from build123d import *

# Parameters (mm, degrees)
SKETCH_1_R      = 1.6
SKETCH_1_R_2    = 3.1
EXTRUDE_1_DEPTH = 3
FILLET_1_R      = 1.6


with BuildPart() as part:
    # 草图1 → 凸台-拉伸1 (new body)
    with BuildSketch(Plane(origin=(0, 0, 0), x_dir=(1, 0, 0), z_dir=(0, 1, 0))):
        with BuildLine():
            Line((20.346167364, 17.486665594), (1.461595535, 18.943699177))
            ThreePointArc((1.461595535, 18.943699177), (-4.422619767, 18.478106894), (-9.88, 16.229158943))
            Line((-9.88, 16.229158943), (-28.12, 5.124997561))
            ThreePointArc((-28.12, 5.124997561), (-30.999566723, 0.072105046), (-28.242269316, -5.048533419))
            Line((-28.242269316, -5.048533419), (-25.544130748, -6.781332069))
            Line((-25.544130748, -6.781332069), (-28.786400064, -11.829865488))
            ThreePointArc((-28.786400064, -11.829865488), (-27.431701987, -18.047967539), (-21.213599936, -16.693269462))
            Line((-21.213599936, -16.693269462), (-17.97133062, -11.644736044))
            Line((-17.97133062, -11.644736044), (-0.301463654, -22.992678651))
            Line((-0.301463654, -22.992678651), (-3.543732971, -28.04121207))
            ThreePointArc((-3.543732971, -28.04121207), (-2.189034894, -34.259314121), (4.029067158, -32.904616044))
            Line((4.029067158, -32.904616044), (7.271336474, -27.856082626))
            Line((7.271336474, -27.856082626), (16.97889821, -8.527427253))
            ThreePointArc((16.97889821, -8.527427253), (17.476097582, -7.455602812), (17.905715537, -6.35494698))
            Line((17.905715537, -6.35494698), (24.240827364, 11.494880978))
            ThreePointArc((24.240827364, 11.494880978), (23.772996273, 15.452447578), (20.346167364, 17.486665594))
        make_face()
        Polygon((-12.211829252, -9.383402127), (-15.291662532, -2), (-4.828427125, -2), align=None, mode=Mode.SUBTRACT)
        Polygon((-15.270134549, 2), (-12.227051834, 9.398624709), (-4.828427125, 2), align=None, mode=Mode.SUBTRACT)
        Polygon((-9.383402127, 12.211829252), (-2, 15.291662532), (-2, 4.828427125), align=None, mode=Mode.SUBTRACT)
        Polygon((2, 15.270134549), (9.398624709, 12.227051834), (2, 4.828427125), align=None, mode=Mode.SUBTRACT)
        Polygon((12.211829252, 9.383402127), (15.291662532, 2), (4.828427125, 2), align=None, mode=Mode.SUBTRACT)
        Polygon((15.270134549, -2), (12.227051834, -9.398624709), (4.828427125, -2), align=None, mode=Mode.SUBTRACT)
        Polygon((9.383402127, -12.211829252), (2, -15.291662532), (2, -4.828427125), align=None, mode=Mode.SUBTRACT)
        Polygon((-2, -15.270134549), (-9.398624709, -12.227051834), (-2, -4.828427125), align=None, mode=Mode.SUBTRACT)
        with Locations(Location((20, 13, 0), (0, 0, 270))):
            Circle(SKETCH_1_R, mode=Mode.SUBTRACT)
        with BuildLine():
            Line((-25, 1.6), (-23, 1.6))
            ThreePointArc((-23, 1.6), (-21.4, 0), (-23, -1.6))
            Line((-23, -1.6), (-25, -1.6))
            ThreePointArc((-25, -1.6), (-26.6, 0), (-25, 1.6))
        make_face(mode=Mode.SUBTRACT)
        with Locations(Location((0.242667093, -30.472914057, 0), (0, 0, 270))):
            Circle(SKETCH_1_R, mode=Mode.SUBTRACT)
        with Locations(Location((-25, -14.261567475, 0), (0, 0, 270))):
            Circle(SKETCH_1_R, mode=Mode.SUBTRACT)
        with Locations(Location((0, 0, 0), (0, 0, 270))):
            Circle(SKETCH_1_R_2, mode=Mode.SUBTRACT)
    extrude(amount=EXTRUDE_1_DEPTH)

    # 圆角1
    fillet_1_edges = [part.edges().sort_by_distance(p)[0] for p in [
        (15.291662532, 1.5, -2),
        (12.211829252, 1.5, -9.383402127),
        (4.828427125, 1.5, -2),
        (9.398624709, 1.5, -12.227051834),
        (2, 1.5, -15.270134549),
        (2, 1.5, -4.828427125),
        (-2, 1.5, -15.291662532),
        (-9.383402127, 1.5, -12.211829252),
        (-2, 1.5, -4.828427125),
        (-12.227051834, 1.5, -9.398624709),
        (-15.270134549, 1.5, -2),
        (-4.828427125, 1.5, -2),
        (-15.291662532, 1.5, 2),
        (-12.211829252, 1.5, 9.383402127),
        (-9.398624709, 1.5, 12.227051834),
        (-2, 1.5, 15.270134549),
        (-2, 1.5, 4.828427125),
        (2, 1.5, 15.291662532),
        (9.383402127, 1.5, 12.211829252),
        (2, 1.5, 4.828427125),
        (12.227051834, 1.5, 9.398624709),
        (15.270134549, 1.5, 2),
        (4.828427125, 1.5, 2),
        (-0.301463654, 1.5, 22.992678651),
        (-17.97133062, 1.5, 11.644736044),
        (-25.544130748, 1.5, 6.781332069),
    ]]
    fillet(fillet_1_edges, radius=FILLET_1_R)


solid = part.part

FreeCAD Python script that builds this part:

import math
import FreeCAD as App
import Part
import Sketcher
from FreeCAD import Vector
Q = App.Units.Quantity


def edges_at(feature, points):
    """Names of the edges that pass closest to the given points."""
    edges = feature.Shape.Edges
    near = lambda p: min(range(len(edges)), key=lambda i: edges[i].distToShape(Part.Vertex(*p))[0])
    return sorted({f"Edge{near(p) + 1}" for p in points})


def add_polygon(sketch, points):
    """Adds a closed chain of lines whose ends are joined by coincident constraints."""
    first, n = sketch.GeometryCount, len(points)
    for a, b in zip(points, points[1:] + points[:1]):
        sketch.addGeometry(Part.LineSegment(App.Vector(*a, 0), App.Vector(*b, 0)), False)
    for i in range(n):
        sketch.addConstraint(Sketcher.Constraint("Coincident", first + i, 2, first + (i + 1) % n, 1))

doc = App.newDocument("Part")
body = doc.addObject("PartDesign::Body", "Body")

sketch1 = body.newObject("Sketcher::SketchObject", "Sketch")
sketch1.AttachmentSupport = (doc.getObject("XZ_Plane"), [""])
sketch1.MapMode = "FlatFace"
sketch1.addGeometry(Part.LineSegment(Vector(20.3, -17.5, 0), Vector(1.5, -18.9, 0)), False)
sketch1.addGeometry(Part.ArcOfCircle(Part.Circle(Vector(0, 0, 0), Vector(0, 0, 1), 19), math.radians(-121), math.radians(-86)), False)
sketch1.addGeometry(Part.LineSegment(Vector(-9.9, -16.2, 0), Vector(-28.1, -5.1, 0)), False)
sketch1.addGeometry(Part.ArcOfCircle(Part.Circle(Vector(-25, 0, 0), Vector(0, 0, 1), 6), math.radians(123), math.radians(239)), False)
sketch1.addGeometry(Part.LineSegment(Vector(-28.2, 5, 0), Vector(-25.5, 6.8, 0)), False)
sketch1.addGeometry(Part.LineSegment(Vector(-25.5, 6.8, 0), Vector(-28.8, 11.8, 0)), False)
sketch1.addGeometry(Part.ArcOfCircle(Part.Circle(Vector(-25, 14.3, 0), Vector(0, 0, 1), 4.5), math.radians(33), math.radians(213)), False)
sketch1.addGeometry(Part.LineSegment(Vector(-21.2, 16.7, 0), Vector(-18, 11.6, 0)), False)
sketch1.addGeometry(Part.LineSegment(Vector(-18, 11.6, 0), Vector(-0.3, 23, 0)), False)
sketch1.addGeometry(Part.LineSegment(Vector(-0.3, 23, 0), Vector(-3.5, 28, 0)), False)
sketch1.addGeometry(Part.ArcOfCircle(Part.Circle(Vector(0.2, 30.5, 0), Vector(0, 0, 1), 4.5), math.radians(33), math.radians(213)), False)
sketch1.addGeometry(Part.LineSegment(Vector(4, 32.9, 0), Vector(7.3, 27.9, 0)), False)
sketch1.addGeometry(Part.LineSegment(Vector(7.3, 27.9, 0), Vector(17, 8.5, 0)), False)
sketch1.addGeometry(Part.ArcOfCircle(Part.Circle(Vector(0, 0, 0), Vector(0, 0, 1), 19), math.radians(19.54), math.radians(26.67)), False)
sketch1.addGeometry(Part.LineSegment(Vector(17.9, 6.4, 0), Vector(24.2, -11.5, 0)), False)
sketch1.addGeometry(Part.ArcOfCircle(Part.Circle(Vector(20, -13, 0), Vector(0, 0, 1), 4.5), math.radians(-86), math.radians(20)), False)
sketch1.addGeometry(Part.Circle(Vector(-25, 14.3, 0), Vector(0, 0, 1), 1.6), False)
add_polygon(sketch1, [(-2, 4.8), (-2, 15.3), (-9.4, 12.2)])
sketch1.addGeometry(Part.Circle(Vector(0.2, 30.5, 0), Vector(0, 0, 1), 1.6), False)
add_polygon(sketch1, [(2, 4.8), (9.4, 12.2), (2, 15.3)])
sketch1.addGeometry(Part.ArcOfCircle(Part.Circle(Vector(-25, 0, 0), Vector(0, 0, 1), 1.6), math.radians(90), math.radians(270)), False)
sketch1.addGeometry(Part.LineSegment(Vector(-25, -1.6, 0), Vector(-23, -1.6, 0)), False)
sketch1.addGeometry(Part.ArcOfCircle(Part.Circle(Vector(-23, 0, 0), Vector(0, 0, 1), 1.6), math.radians(-90), math.radians(90)), False)
sketch1.addGeometry(Part.LineSegment(Vector(-23, 1.6, 0), Vector(-25, 1.6, 0)), False)
add_polygon(sketch1, [(-4.8, 2), (-12.2, 9.4), (-15.3, 2)])
add_polygon(sketch1, [(-4.8, -2), (-15.3, -2), (-12.2, -9.4)])
add_polygon(sketch1, [(-2, -4.8), (-9.4, -12.2), (-2, -15.3)])
sketch1.addGeometry(Part.Circle(Vector(0, 0, 0), Vector(0, 0, 1), 3.1), False)
add_polygon(sketch1, [(4.8, 2), (15.3, 2), (12.2, 9.4)])
add_polygon(sketch1, [(2, -4.8), (2, -15.3), (9.4, -12.2)])
add_polygon(sketch1, [(4.8, -2), (12.2, -9.4), (15.3, -2)])
sketch1.addGeometry(Part.Circle(Vector(20, -13, 0), Vector(0, 0, 1), 1.6), False)
sketch1.addConstraint([
    Sketcher.Constraint("Tangent", 0, 2, 1, 2),
    Sketcher.Constraint("Tangent", 1, 1, 2, 1),
    Sketcher.Constraint("Tangent", 2, 2, 3, 2),
    Sketcher.Constraint("Tangent", 3, 1, 4, 1),
    Sketcher.Constraint("Coincident", 4, 2, 5, 1),
    Sketcher.Constraint("Tangent", 5, 2, 6, 2),
    Sketcher.Constraint("Tangent", 6, 1, 7, 1),
    Sketcher.Constraint("Coincident", 7, 2, 8, 1),
    Sketcher.Constraint("Coincident", 8, 2, 9, 1),
    Sketcher.Constraint("Tangent", 9, 2, 10, 2),
    Sketcher.Constraint("Tangent", 10, 1, 11, 1),
    Sketcher.Constraint("Coincident", 11, 2, 12, 1),
    Sketcher.Constraint("Tangent", 12, 2, 13, 2),
    Sketcher.Constraint("Tangent", 13, 1, 14, 1),
    Sketcher.Constraint("Tangent", 14, 2, 15, 2),
    Sketcher.Constraint("Tangent", 15, 1, 0, 1),
    Sketcher.Constraint("Tangent", 24, 2, 25, 1),
    Sketcher.Constraint("Tangent", 25, 2, 26, 1),
    Sketcher.Constraint("Tangent", 26, 2, 27, 1),
    Sketcher.Constraint("Tangent", 27, 2, 24, 1),
    Sketcher.Constraint("Vertical", 17),
    Sketcher.Constraint("Vertical", 23),
    Sketcher.Constraint("Horizontal", 25),
    Sketcher.Constraint("Horizontal", 27),
    Sketcher.Constraint("Horizontal", 30),
    Sketcher.Constraint("Horizontal", 31),
    Sketcher.Constraint("Vertical", 36),
    Sketcher.Constraint("Horizontal", 38),
    Sketcher.Constraint("Vertical", 41),
    Sketcher.Constraint("Horizontal", 46),
    Sketcher.Constraint("Coincident", 1, 3, -1, 1),
    Sketcher.Constraint("Coincident", 13, 3, -1, 1),
    Sketcher.Constraint("Coincident", 37, 3, -1, 1),
    Sketcher.Constraint("Coincident", 16, 3, 6, 3),
    Sketcher.Constraint("Coincident", 20, 3, 10, 3),
    Sketcher.Constraint("Coincident", 24, 3, 3, 3),
    Sketcher.Constraint("Coincident", 47, 3, 15, 3),
    Sketcher.Constraint("Equal", 6, 10),
    Sketcher.Constraint("Equal", 1, 13),
    Sketcher.Constraint("Equal", 10, 15),
    Sketcher.Constraint("Equal", 16, 20),
    Sketcher.Constraint("Equal", 20, 24),
    Sketcher.Constraint("Equal", 26, 47),
    Sketcher.Constraint("Symmetric", 21, 2, 34, 2, -1, 1),
    Sketcher.Constraint("Symmetric", 22, 2, 35, 2, -1, 1),
    Sketcher.Constraint("Symmetric", 31, 2, 38, 2, -1, 1),
    Sketcher.Constraint("Symmetric", 32, 2, 39, 2, -1, 1),
    Sketcher.Constraint("Symmetric", 17, 2, 41, 2, -1, 1),
    Sketcher.Constraint("Symmetric", 18, 2, 42, 2, -1, 1),
    Sketcher.Constraint("Symmetric", 28, 2, 44, 2, -1, 1),
    Sketcher.Constraint("Symmetric", 29, 2, 45, 2, -1, 1),
    Sketcher.Constraint("Symmetric", 19, 2, 23, 2, -2),
    Sketcher.Constraint("Symmetric", 30, 2, 40, 2, -2),
    Sketcher.Constraint("PointOnObject", 3, 3, -1),
    Sketcher.Constraint("Perpendicular", 4, 5),
    Sketcher.Constraint("Parallel", 5, 7),
    Sketcher.Constraint("Perpendicular", 7, 8),
    Sketcher.Constraint("Perpendicular", 8, 9),
    Sketcher.Constraint("Parallel", 9, 11),
    Sketcher.Constraint("Perpendicular", 19, 21),
    Sketcher.Constraint("Perpendicular", 21, 28),
    Sketcher.Constraint("Perpendicular", 22, 29),
    Sketcher.Constraint("Perpendicular", 18, 32),
    Sketcher.Constraint("Perpendicular", 28, 33),
    Sketcher.Constraint("Parallel", 33, 34),
    Sketcher.Constraint("Parallel", 34, 40),
    Sketcher.Constraint("Perpendicular", 40, 43),
    Sketcher.Constraint("Parallel", 43, 44),
    Sketcher.Constraint("Vertical", 3, 3, 6, 3),
    Sketcher.Constraint("Equal", 38, 17),
    Sketcher.Constraint("Equal", 46, 23),
    Sketcher.Constraint("Equal", 5, 7),
    Sketcher.Constraint("Equal", 7, 9),
    Sketcher.Constraint("Equal", 9, 11),
    Sketcher.Constraint("Equal", 18, 22),
    Sketcher.Constraint("Radius", 1, Q("19 mm")),
    Sketcher.Constraint("Radius", 3, Q("6 mm")),
    Sketcher.Constraint("Diameter", 16, Q("3.2 mm")),
    Sketcher.Constraint("Diameter", 37, Q("6.2 mm")),
    Sketcher.Constraint("Radius", 6, Q("4.5 mm")),
    Sketcher.Constraint("DistanceX", 25, 1, 25, 2, Q("2 mm")),
    Sketcher.Constraint("Angle", 19, Q("-45 deg")),
    Sketcher.Constraint("Distance", 5, Q("6 mm")),
    Sketcher.Constraint("Distance", 8, Q("21 mm")),
    Sketcher.Constraint("Distance", 18, Q("8 mm")),
    Sketcher.Constraint("DistanceX", 3, 3, -1, 1, Q("25 mm")),
    Sketcher.Constraint("DistanceX", -1, 1, 15, 3, Q("20 mm")),
    Sketcher.Constraint("DistanceY", 15, 3, -1, 1, Q("13 mm")),
    Sketcher.Constraint("DistanceX", 17, 2, -1, 1, Q("2 mm")),
    Sketcher.Constraint("DistanceY", -1, 1, 29, 2, Q("2 mm")),
    Sketcher.Constraint("DistanceX", 5, 2, -1, 1, Q("28.7864 mm")),
    Sketcher.Constraint("DistanceY", 12, 2, 21, 2, Q("3.684402 mm")),
    Sketcher.Constraint("DistanceX", 7, 2, 28, 2, Q("5.759501 mm")),
    Sketcher.Constraint("DistanceX", 30, 1, 30, 2, Q("10.463235 mm")),
    Sketcher.Constraint("DistanceX", 31, 2, 31, 1, Q("10.441707 mm")),
])
pad1 = body.newObject("PartDesign::Pad", "Pad")
pad1.Profile = sketch1
pad1.Length = 3
pad1.Reversed = True
doc.recompute()

fillet = body.newObject("PartDesign::Fillet", "Fillet")
fillet.Base = (pad1, edges_at(pad1, [
    (15.292, 1.5, -2),
    (12.212, 1.5, -9.383),
    (4.828, 1.5, -2),
    (9.399, 1.5, -12.227),
    (2, 1.5, -15.27),
    (2, 1.5, -4.828),
    (-2, 1.5, -15.292),
    (-9.383, 1.5, -12.212),
    (-2, 1.5, -4.828),
    (-12.227, 1.5, -9.399),
    (-15.27, 1.5, -2),
    (-4.828, 1.5, -2),
    (-15.292, 1.5, 2),
    (-12.212, 1.5, 9.383),
    (-9.399, 1.5, 12.227),
    (-2, 1.5, 15.27),
    (-2, 1.5, 4.828),
    (2, 1.5, 15.292),
    (9.383, 1.5, 12.212),
    (2, 1.5, 4.828),
    (12.227, 1.5, 9.399),
    (15.27, 1.5, 2),
    (4.828, 1.5, 2),
    (-0.301, 1.5, 22.993),
    (-17.971, 1.5, 11.645),
    (-25.544, 1.5, 6.781),
]))
fillet.Radius = 1.6

doc.recompute()
